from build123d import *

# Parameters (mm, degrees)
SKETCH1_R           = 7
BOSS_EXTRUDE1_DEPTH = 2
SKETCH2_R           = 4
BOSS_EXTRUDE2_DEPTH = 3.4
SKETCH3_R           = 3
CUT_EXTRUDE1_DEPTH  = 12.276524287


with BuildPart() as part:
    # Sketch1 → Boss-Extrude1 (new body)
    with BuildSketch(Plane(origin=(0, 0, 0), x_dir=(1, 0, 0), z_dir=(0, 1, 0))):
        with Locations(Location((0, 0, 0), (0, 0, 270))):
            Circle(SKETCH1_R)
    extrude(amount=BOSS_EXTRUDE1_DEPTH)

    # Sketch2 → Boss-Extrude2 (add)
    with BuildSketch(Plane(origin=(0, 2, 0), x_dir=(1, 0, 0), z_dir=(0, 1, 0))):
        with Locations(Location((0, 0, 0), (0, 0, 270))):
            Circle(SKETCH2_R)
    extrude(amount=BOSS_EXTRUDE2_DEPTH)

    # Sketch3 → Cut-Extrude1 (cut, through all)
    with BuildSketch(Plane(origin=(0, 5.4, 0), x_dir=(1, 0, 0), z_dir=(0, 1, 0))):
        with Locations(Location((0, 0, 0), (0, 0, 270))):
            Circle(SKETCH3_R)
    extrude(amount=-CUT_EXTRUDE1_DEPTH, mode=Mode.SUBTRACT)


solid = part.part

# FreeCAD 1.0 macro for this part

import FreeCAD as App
import Part
import Sketcher
from FreeCAD import Vector
Q = App.Units.Quantity

doc = App.newDocument("Part")
params = doc.addObject("Spreadsheet::Sheet", "Params")
for row, (alias, value) in enumerate([
    ("sketch1_diameter", "14 mm"),
    ("pad1_length", "2 mm"),
    ("sketch2_diameter", "8 mm"),
    ("pad2_length", "3.4 mm"),
    ("sketch3_diameter", "6 mm"),
], start=1):
    params.set(f"A{row}", alias)
    params.set(f"B{row}", "=" + value)
    params.setAlias(f"B{row}", alias)

body = doc.addObject("PartDesign::Body", "Body")

# Sketch on XZ plane
sketch1 = doc.addObject("Sketcher::SketchObject", "Sketch")
body.addObject(sketch1)
sketch1.AttachmentSupport = (doc.XZ_Plane, [""])
sketch1.MapMode = "FlatFace"
sketch1.addGeometry(Part.Circle(Vector(0, 0, 0), Vector(0, 0, 1), 7), False)
sketch1.addConstraint([
    Sketcher.Constraint("Coincident", 0, 3, -1, 1),
    Sketcher.Constraint("Diameter", 0, Q("14 mm")),
])
sketch1.setExpression("Constraints[1]", "Params.sketch1_diameter")
pad1 = doc.addObject("PartDesign::Pad", "Pad")
body.addObject(pad1)
pad1.Profile = sketch1
pad1.setExpression("Length", "Params.pad1_length")
pad1.Reversed = True

# Sketch on XZ plane
sketch2 = doc.addObject("Sketcher::SketchObject", "Sketch001")
body.addObject(sketch2)
sketch2.AttachmentSupport = (doc.XZ_Plane, [""])
sketch2.MapMode = "FlatFace"
sketch2.AttachmentOffset = App.Placement(Vector(0, 0, -2), App.Rotation())
sketch2.addGeometry(Part.Circle(Vector(0, 0, 0), Vector(0, 0, 1), 4), False)
sketch2.addConstraint([
    Sketcher.Constraint("Coincident", 0, 3, -1, 1),
    Sketcher.Constraint("Diameter", 0, Q("8 mm")),
])
sketch2.setExpression("Constraints[1]", "Params.sketch2_diameter")
pad2 = doc.addObject("PartDesign::Pad", "Pad001")
body.addObject(pad2)
pad2.Profile = sketch2
pad2.setExpression("Length", "Params.pad2_length")
pad2.Reversed = True

# Sketch on XZ plane
sketch3 = doc.addObject("Sketcher::SketchObject", "Sketch002")
body.addObject(sketch3)
sketch3.AttachmentSupport = (doc.XZ_Plane, [""])
sketch3.MapMode = "FlatFace"
sketch3.AttachmentOffset = App.Placement(Vector(0, 0, -5.4), App.Rotation())
sketch3.addGeometry(Part.Circle(Vector(0, 0, 0), Vector(0, 0, 1), 3), False)
sketch3.addConstraint([
    Sketcher.Constraint("Coincident", 0, 3, -1, 1),
    Sketcher.Constraint("Diameter", 0, Q("6 mm")),
])
sketch3.setExpression("Constraints[1]", "Params.sketch3_diameter")
pocket1 = doc.addObject("PartDesign::Pocket", "Pocket")
body.addObject(pocket1)
pocket1.Profile = sketch3
pocket1.Type = "ThroughAll"
pocket1.Reversed = True

doc.recompute()
